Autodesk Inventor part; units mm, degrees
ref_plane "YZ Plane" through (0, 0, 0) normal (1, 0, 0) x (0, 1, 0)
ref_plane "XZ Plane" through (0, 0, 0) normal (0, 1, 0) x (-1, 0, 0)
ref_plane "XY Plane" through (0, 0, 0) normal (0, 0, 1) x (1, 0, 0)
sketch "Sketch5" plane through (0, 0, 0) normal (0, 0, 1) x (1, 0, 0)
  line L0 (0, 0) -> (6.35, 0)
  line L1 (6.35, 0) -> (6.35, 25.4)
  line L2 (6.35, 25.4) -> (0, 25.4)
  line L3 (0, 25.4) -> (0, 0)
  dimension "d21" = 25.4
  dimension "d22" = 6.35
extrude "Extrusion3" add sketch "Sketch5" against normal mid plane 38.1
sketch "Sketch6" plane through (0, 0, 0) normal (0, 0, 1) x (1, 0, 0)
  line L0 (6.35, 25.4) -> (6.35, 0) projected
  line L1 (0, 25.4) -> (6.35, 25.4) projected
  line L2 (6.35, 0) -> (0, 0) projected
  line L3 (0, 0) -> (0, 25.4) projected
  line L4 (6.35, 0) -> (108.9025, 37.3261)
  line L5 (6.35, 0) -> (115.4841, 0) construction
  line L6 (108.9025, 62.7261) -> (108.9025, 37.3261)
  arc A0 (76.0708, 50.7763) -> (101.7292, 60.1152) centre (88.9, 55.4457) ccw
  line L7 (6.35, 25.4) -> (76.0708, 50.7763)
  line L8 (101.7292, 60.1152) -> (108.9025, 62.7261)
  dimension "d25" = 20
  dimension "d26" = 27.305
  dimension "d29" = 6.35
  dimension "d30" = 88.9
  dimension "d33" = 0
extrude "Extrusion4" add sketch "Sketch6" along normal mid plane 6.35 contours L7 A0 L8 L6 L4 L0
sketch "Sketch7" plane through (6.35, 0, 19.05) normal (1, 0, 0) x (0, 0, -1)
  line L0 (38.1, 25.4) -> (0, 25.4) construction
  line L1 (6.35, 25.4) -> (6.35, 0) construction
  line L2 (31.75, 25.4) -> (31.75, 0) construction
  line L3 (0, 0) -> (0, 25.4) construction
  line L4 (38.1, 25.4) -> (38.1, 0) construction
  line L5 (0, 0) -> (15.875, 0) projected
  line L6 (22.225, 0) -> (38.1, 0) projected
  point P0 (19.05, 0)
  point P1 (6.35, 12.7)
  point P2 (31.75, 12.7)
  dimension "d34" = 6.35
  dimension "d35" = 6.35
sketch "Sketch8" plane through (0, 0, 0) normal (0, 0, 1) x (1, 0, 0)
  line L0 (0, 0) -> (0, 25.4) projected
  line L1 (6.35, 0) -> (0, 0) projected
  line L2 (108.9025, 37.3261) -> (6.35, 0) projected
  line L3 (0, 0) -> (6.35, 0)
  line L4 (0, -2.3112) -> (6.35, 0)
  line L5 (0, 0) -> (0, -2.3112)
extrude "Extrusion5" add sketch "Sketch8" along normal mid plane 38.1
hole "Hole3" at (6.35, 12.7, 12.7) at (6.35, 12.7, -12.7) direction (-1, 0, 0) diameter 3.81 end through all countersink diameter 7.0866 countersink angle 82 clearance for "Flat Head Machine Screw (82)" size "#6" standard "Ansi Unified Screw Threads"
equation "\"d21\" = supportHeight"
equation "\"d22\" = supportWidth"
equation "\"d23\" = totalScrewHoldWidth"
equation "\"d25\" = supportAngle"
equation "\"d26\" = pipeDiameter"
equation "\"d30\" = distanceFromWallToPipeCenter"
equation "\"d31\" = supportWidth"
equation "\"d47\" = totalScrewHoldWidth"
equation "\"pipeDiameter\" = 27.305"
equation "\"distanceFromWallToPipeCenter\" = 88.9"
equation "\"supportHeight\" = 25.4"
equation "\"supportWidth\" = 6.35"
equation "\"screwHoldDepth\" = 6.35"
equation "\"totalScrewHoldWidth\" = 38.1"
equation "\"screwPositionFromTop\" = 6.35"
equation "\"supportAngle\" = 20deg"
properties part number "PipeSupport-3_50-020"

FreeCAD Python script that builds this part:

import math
import FreeCAD as App
import Part
import Sketcher

V = App.Vector
Q = App.Units.Quantity


def add_polygon(sketch, points):
    """Adds a closed chain of lines whose ends are joined by coincident constraints."""
    first, n = sketch.GeometryCount, len(points)
    for a, b in zip(points, points[1:] + points[:1]):
        sketch.addGeometry(Part.LineSegment(App.Vector(*a, 0), App.Vector(*b, 0)), False)
    for i in range(n):
        sketch.addConstraint(Sketcher.Constraint("Coincident", first + i, 2, first + (i + 1) % n, 1))

doc = App.newDocument("Part")
body = doc.addObject("PartDesign::Body", "Body")

# Sketch on XY plane
sketch1 = body.newObject("Sketcher::SketchObject", "Sketch")
sketch1.AttachmentSupport = (doc.getObject("XY_Plane"), [""])
sketch1.MapMode = "FlatFace"
add_polygon(sketch1, [(0, 25), (0, 0), (6, 0), (6, 25)])  # lines 0-3
sketch1.addConstraint([
    Sketcher.Constraint("Vertical", 0),
    Sketcher.Constraint("Horizontal", 1),
    Sketcher.Constraint("Vertical", 2),
    Sketcher.Constraint("Horizontal", 3),
    Sketcher.Constraint("Coincident", 0, 2, -1, 1),
    Sketcher.Constraint("DistanceY", 0, 2, 0, 1, Q("1 in")),
    Sketcher.Constraint("DistanceX", 1, 1, 1, 2, Q("0.25 in")),
])
pad1 = body.newObject("PartDesign::Pad", "Pad")
pad1.Profile = sketch1
pad1.Length = Q("1.5 in")
pad1.Midplane = True

# Sketch on XY plane
sketch2 = body.newObject("Sketcher::SketchObject", "Sketch001")
sketch2.AttachmentSupport = (doc.getObject("XY_Plane"), [""])
sketch2.MapMode = "FlatFace"
sketch2.addGeometry([
    Part.LineSegment(V(76, 51, 0), V(6, 25, 0)),  # 0
    Part.LineSegment(V(6, 25, 0), V(6, 0, 0)),  # 1
    Part.LineSegment(V(6, 0, 0), V(109, 37, 0)),  # 2
    Part.LineSegment(V(109, 37, 0), V(109, 63, 0)),  # 3
    Part.LineSegment(V(109, 63, 0), V(102, 60, 0)),  # 4
    Part.ArcOfCircle(Part.Circle(V(89, 55, 0), V(0, 0, 1), 14), math.radians(-160), math.radians(20)),  # 5
], False)
sketch2.addConstraint([
    Sketcher.Constraint("Coincident", 0, 2, 1, 1),
    Sketcher.Constraint("Coincident", 1, 2, 2, 1),
    Sketcher.Constraint("Coincident", 2, 2, 3, 1),
    Sketcher.Constraint("Coincident", 3, 2, 4, 1),
    Sketcher.Constraint("Coincident", 4, 2, 5, 2),
    Sketcher.Constraint("Coincident", 5, 1, 0, 1),
    Sketcher.Constraint("Vertical", 1),
    Sketcher.Constraint("Vertical", 3),
    Sketcher.Constraint("PointOnObject", 1, 2, -1),
    Sketcher.Constraint("Parallel", 0, 2),
    Sketcher.Constraint("Parallel", 2, 4),
    Sketcher.Constraint("Equal", 1, 3),
    Sketcher.Constraint("Angle", 2, Q("20 deg")),
    Sketcher.Constraint("DistanceX", -1, 1, 5, 3, Q("3.5 in")),
    Sketcher.Constraint("Radius", 5, Q("0.5375 in")),
    Sketcher.Constraint("DistanceY", 1, 2, 1, 1, Q("1 in")),
    Sketcher.Constraint("DistanceX", -1, 1, 0, 2, Q("0.25 in")),
    Sketcher.Constraint("DistanceY", -1, 1, 5, 3, Q("2.1829 in")),
    Sketcher.Constraint("DistanceX", -1, 1, 2, 2, Q("4.2875 in")),
])
pad2 = body.newObject("PartDesign::Pad", "Pad001")
pad2.Profile = sketch2
pad2.Length = Q("0.25 in")
pad2.Midplane = True

# Sketch on XY plane
sketch3 = body.newObject("Sketcher::SketchObject", "Sketch002")
sketch3.AttachmentSupport = (doc.getObject("XY_Plane"), [""])
sketch3.MapMode = "FlatFace"
add_polygon(sketch3, [(0, -2.3), (6.3, 0), (0, 0)])  # lines 0-2
sketch3.addConstraint([
    Sketcher.Constraint("Horizontal", 1),
    Sketcher.Constraint("Vertical", 2),
    Sketcher.Constraint("Coincident", 1, 2, -1, 1),
    Sketcher.Constraint("Angle", 0, Q("20 deg")),
    Sketcher.Constraint("DistanceX", 1, 2, 1, 1, Q("0.25 in")),
])
pad3 = body.newObject("PartDesign::Pad", "Pad002")
pad3.Profile = sketch3
pad3.Length = Q("1.5 in")
pad3.Midplane = True

# Sketch on YZ plane
sketch4 = body.newObject("Sketcher::SketchObject", "Sketch003")
sketch4.AttachmentSupport = (doc.getObject("YZ_Plane"), [""])
sketch4.MapMode = "FlatFace"
sketch4.AttachmentOffset = App.Placement(V(0, 0, 0.25 * 25.4), App.Rotation())
sketch4.addGeometry([
    Part.Circle(V(12.7, 12.7, 0), V(0, 0, 1), 1.9),
    Part.Circle(V(12.7, -12.7, 0), V(0, 0, 1), 1.9),
], False)
sketch4.addConstraint([
    Sketcher.Constraint("Equal", 0, 1),
    Sketcher.Constraint("Symmetric", 0, 3, 1, 3, -1),
    Sketcher.Constraint("Diameter", 0, Q("0.15 in")),
    Sketcher.Constraint("DistanceY", 1, 3, 0, 3, Q("1 in")),
    Sketcher.Constraint("DistanceX", -1, 1, 0, 3, Q("0.5 in")),
])
doc.recompute()
hole = body.newObject("PartDesign::Hole", "Hole")
hole.Profile = sketch4
hole.ThreadType = "None"
hole.Diameter = Q("0.15 in")
hole.DepthType = "ThroughAll"
hole.HoleCutType = "Countersink"
hole.HoleCutDiameter = Q("0.279 in")
hole.HoleCutCountersinkAngle = 82

doc.recompute()
